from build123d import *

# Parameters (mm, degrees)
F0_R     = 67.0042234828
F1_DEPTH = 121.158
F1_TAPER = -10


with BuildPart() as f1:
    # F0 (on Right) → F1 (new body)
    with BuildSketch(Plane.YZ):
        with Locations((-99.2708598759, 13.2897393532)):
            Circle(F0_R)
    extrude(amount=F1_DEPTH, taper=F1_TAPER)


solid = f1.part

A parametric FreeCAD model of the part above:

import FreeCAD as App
import Part
import Sketcher

doc = App.newDocument("Part")
params = doc.addObject("Spreadsheet::Sheet", "Params")
for row, (alias, value) in enumerate([
    ("pad1_length", "4.77 in"),
    ("pad1_taper", "10 deg"),
], start=1):
    params.set(f"A{row}", alias)
    params.set(f"B{row}", "=" + value)
    params.setAlias(f"B{row}", alias)

body = doc.addObject("PartDesign::Body", "Body")

# Sketch on YZ plane
sketch1 = body.newObject("Sketcher::SketchObject", "Sketch")
sketch1.AttachmentSupport = (doc.getObject("YZ_Plane"), [""])
sketch1.MapMode = "FlatFace"
sketch1.addGeometry(Part.Circle(App.Vector(-99.27086, 13.289739, 0), App.Vector(0, 0, 1), 67.004223), False)
sketch1.addConstraint([
    Sketcher.Constraint("Diameter", 0, 134.008447),
    Sketcher.Constraint("DistanceX", 0, 3, -1, 1, 99.27086),
    Sketcher.Constraint("DistanceY", -1, 1, 0, 3, 13.289739),
])
pad1 = body.newObject("PartDesign::Pad", "Pad")
pad1.Profile = sketch1
pad1.setExpression("Length", "Params.pad1_length")
pad1.setExpression("TaperAngle", "Params.pad1_taper")

doc.recompute()
